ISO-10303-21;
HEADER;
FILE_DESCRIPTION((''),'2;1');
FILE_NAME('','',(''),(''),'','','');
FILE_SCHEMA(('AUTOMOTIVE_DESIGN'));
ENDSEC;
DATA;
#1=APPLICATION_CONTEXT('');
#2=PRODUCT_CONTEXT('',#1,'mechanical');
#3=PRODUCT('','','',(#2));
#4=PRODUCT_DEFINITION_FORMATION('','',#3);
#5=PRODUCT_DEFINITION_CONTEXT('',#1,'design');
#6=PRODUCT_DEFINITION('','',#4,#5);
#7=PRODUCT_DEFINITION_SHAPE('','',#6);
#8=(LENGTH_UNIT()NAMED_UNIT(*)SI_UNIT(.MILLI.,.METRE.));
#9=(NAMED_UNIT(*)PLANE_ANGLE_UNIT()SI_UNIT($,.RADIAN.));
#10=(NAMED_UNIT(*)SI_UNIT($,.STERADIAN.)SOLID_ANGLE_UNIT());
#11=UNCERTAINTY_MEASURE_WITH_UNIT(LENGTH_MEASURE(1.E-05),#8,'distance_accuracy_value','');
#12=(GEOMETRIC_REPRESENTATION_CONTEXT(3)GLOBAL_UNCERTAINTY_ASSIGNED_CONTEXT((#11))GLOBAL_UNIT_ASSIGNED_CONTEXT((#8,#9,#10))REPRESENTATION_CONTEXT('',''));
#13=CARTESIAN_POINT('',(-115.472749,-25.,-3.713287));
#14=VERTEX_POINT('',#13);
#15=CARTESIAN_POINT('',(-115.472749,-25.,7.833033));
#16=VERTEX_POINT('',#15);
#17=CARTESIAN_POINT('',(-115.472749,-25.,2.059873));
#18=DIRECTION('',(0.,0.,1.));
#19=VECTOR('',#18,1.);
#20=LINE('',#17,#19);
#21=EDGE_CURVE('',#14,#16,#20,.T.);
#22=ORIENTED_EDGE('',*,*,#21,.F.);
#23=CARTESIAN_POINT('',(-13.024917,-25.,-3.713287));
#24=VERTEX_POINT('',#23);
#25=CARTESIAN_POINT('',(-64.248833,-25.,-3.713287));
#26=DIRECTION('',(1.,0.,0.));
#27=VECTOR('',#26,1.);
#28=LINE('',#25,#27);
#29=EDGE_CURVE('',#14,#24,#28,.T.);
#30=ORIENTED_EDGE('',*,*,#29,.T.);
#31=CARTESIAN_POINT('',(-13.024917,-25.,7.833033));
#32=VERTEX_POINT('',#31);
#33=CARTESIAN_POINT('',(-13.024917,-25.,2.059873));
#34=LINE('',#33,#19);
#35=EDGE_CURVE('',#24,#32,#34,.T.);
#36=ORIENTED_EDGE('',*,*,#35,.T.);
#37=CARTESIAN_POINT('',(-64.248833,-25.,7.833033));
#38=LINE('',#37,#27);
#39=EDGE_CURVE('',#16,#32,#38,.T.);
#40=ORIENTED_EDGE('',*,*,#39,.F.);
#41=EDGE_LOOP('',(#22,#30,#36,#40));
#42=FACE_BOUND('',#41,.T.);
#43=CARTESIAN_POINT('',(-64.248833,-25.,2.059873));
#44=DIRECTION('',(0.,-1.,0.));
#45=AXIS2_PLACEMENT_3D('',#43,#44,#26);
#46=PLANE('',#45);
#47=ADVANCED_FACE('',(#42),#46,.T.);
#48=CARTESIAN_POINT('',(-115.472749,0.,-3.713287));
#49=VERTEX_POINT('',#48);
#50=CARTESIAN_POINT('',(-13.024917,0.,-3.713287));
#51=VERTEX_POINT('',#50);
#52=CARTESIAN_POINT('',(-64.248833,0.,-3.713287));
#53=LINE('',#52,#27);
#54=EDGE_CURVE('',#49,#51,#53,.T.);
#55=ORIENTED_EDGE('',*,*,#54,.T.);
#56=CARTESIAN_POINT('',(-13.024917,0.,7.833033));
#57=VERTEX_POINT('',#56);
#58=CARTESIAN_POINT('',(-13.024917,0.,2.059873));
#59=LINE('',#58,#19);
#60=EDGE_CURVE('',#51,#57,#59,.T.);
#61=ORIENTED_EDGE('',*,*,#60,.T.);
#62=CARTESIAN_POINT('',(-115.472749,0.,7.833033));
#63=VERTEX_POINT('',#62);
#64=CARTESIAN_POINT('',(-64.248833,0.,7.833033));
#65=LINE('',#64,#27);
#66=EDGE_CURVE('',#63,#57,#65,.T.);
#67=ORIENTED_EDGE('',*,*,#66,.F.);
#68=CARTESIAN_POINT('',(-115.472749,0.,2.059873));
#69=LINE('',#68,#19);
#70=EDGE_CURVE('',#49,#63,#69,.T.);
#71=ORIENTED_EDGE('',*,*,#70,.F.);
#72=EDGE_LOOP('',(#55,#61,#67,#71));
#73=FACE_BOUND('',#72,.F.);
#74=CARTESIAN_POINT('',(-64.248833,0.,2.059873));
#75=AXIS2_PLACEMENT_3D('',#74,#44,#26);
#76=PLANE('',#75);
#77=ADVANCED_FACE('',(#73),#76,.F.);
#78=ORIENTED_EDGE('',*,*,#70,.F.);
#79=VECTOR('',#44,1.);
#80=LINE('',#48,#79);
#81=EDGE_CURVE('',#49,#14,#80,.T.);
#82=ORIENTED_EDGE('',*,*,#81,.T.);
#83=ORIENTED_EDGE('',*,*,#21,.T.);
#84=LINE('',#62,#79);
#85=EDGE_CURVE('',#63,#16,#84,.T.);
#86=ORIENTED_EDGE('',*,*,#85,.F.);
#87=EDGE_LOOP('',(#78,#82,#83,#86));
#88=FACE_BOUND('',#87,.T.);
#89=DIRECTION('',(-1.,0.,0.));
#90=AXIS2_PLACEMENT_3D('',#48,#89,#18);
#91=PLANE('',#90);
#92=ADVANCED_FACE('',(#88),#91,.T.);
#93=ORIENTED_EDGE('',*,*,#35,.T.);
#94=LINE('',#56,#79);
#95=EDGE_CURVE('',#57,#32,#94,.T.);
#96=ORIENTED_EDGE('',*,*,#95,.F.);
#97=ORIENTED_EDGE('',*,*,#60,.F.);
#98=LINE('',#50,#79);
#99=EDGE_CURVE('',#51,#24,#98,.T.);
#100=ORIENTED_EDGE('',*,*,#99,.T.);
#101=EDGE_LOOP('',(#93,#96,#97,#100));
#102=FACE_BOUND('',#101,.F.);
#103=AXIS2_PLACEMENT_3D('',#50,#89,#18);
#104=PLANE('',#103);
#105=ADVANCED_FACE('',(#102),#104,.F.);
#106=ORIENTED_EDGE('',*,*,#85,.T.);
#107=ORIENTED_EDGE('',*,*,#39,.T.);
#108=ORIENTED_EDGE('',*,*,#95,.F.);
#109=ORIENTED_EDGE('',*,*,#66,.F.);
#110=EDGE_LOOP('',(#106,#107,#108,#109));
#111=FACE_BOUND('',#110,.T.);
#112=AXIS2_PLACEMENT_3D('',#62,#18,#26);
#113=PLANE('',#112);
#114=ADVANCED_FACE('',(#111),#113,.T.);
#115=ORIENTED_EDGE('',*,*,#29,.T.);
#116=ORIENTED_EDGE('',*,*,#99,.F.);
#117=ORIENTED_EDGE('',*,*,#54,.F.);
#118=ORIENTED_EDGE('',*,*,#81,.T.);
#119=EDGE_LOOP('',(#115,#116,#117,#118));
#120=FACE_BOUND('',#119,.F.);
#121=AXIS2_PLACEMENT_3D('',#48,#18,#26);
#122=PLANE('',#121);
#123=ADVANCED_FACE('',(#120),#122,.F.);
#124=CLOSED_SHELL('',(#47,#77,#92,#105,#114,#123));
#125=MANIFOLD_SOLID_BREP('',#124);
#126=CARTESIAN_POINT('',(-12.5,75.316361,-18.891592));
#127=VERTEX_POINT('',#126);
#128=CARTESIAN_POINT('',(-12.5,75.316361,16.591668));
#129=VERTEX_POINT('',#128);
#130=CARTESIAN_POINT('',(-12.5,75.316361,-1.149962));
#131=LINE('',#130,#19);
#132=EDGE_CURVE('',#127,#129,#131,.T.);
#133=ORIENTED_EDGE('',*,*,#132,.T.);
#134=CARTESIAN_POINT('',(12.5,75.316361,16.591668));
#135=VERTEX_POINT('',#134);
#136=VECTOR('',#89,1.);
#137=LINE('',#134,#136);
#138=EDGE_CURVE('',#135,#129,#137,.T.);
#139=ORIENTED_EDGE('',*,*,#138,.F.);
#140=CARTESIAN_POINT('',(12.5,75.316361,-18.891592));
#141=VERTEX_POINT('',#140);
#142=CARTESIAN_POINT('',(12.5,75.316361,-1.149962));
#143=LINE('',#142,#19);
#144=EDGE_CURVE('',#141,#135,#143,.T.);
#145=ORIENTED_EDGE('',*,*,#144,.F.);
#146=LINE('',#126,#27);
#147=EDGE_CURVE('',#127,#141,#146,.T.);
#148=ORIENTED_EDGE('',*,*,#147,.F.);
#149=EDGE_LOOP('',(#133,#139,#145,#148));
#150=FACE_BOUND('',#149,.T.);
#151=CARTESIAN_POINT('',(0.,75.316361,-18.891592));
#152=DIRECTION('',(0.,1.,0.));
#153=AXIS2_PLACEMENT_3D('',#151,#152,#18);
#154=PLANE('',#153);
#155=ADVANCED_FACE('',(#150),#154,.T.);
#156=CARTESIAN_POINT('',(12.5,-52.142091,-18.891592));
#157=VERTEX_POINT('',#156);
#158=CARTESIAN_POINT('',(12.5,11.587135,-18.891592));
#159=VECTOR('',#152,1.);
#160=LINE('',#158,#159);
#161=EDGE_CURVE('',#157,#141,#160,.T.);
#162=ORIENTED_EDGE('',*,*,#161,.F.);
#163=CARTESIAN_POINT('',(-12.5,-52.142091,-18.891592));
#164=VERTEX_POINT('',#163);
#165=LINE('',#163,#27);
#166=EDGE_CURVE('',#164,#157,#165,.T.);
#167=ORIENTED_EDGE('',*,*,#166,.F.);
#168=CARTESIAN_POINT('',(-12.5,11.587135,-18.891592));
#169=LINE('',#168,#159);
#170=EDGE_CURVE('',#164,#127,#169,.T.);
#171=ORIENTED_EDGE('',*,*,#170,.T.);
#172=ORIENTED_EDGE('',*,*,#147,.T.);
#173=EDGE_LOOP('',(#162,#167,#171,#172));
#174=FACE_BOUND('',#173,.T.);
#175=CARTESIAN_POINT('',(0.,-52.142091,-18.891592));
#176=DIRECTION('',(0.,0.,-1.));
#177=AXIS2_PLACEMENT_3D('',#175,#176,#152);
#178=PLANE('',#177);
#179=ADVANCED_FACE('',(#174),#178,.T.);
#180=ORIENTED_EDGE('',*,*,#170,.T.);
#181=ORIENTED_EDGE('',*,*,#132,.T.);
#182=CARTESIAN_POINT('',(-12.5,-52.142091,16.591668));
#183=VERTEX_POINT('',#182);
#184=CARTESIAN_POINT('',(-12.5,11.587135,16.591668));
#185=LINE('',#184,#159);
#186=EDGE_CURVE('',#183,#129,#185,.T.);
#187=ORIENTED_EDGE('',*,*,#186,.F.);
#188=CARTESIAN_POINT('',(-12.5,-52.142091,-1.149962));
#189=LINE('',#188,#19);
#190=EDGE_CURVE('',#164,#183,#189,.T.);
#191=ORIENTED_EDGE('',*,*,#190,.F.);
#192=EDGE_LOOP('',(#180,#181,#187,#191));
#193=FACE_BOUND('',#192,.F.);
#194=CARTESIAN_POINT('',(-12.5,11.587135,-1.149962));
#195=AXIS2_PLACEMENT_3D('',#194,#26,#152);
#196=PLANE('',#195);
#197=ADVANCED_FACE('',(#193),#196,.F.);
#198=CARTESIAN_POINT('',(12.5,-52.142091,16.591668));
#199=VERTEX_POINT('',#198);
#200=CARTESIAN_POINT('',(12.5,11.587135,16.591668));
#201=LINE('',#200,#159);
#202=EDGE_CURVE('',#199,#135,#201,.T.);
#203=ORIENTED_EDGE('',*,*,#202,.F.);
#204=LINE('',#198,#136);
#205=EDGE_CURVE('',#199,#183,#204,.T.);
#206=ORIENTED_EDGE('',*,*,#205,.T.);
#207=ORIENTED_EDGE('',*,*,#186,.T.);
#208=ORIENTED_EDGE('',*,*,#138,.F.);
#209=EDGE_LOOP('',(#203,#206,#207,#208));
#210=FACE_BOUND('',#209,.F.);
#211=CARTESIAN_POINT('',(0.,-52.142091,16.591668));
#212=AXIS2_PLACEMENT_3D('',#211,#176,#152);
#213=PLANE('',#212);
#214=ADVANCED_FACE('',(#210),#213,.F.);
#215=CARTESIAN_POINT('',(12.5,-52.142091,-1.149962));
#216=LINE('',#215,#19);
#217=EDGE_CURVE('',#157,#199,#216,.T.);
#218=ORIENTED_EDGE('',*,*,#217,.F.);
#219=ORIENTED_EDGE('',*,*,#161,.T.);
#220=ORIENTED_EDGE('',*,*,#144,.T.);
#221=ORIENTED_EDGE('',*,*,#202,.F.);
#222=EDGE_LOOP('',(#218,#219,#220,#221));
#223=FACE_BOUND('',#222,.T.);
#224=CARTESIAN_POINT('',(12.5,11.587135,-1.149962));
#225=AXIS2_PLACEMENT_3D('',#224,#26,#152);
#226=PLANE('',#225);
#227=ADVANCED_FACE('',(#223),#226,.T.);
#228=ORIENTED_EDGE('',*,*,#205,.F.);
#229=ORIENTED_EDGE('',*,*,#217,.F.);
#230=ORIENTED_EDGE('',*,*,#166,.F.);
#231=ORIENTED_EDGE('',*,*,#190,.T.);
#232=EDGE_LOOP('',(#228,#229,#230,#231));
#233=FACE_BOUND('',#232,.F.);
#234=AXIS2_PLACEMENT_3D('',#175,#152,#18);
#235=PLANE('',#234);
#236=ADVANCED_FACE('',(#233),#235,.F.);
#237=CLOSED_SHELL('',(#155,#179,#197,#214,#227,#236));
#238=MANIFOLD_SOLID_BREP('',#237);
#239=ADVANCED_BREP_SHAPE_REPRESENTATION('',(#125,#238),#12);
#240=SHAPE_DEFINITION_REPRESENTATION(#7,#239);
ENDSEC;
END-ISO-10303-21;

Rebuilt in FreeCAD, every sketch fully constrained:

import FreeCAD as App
import Part
import Sketcher

V = App.Vector

doc = App.newDocument("Part")
body = doc.addObject("PartDesign::Body", "Body")

sketch1 = body.newObject("Sketcher::SketchObject", "Sketch")
sketch1.AttachmentSupport = (doc.getObject("YZ_Plane"), [""])
sketch1.MapMode = "FlatFace"
sketch1.addGeometry(Part.LineSegment(V(-52.142091, 16.591668, 0), V(-52.142091, -18.891592, 0)), False)
sketch1.addGeometry(Part.LineSegment(V(-52.142091, -18.891592, 0), V(75.316361, -18.891592, 0)), False)
sketch1.addGeometry(Part.LineSegment(V(75.316361, -18.891592, 0), V(75.316361, 16.591668, 0)), False)
sketch1.addGeometry(Part.LineSegment(V(75.316361, 16.591668, 0), V(-52.142091, 16.591668, 0)), False)
sketch1.addConstraint(Sketcher.Constraint("Coincident", 0, 2, 1, 1))
sketch1.addConstraint(Sketcher.Constraint("Coincident", 1, 2, 2, 1))
sketch1.addConstraint(Sketcher.Constraint("Coincident", 2, 2, 3, 1))
sketch1.addConstraint(Sketcher.Constraint("Coincident", 3, 2, 0, 1))
sketch1.addConstraint(Sketcher.Constraint("Vertical", 0))
sketch1.addConstraint(Sketcher.Constraint("Horizontal", 1))
sketch1.addConstraint(Sketcher.Constraint("Vertical", 2))
sketch1.addConstraint(Sketcher.Constraint("Horizontal", 3))
sketch1.addConstraint(Sketcher.Constraint("DistanceY", 0, 2, 0, 1, 35.48326))
sketch1.addConstraint(Sketcher.Constraint("DistanceX", 1, 1, 1, 2, 127.458453))
sketch1.addConstraint(Sketcher.Constraint("DistanceX", 0, 2, -1, 1, 52.142091))
sketch1.addConstraint(Sketcher.Constraint("DistanceY", 0, 2, -1, 1, 18.891592))
pad1 = body.newObject("PartDesign::Pad", "Pad")
pad1.Profile = sketch1
pad1.Length = 25
pad1.Midplane = True
body2 = doc.addObject("PartDesign::Body", "Body001")

sketch2 = body2.newObject("Sketcher::SketchObject", "Sketch001")
sketch2.AttachmentSupport = (doc.getObject("XZ_Plane001"), [""])
sketch2.MapMode = "FlatFace"
sketch2.addGeometry(Part.LineSegment(V(-115.472749, 7.833033, 0), V(-115.472749, -3.713287, 0)), False)
sketch2.addGeometry(Part.LineSegment(V(-115.472749, -3.713287, 0), V(-13.024917, -3.713287, 0)), False)
sketch2.addGeometry(Part.LineSegment(V(-13.024917, -3.713287, 0), V(-13.024917, 7.833033, 0)), False)
sketch2.addGeometry(Part.LineSegment(V(-13.024917, 7.833033, 0), V(-115.472749, 7.833033, 0)), False)
sketch2.addConstraint(Sketcher.Constraint("Coincident", 0, 2, 1, 1))
sketch2.addConstraint(Sketcher.Constraint("Coincident", 1, 2, 2, 1))
sketch2.addConstraint(Sketcher.Constraint("Coincident", 2, 2, 3, 1))
sketch2.addConstraint(Sketcher.Constraint("Coincident", 3, 2, 0, 1))
sketch2.addConstraint(Sketcher.Constraint("Vertical", 0))
sketch2.addConstraint(Sketcher.Constraint("Horizontal", 1))
sketch2.addConstraint(Sketcher.Constraint("Vertical", 2))
sketch2.addConstraint(Sketcher.Constraint("Horizontal", 3))
sketch2.addConstraint(Sketcher.Constraint("DistanceX", 1, 1, 1, 2, 102.447832))
sketch2.addConstraint(Sketcher.Constraint("DistanceY", 0, 2, 0, 1, 11.54632))
sketch2.addConstraint(Sketcher.Constraint("DistanceX", 0, 2, -1, 1, 115.472749))
sketch2.addConstraint(Sketcher.Constraint("DistanceY", 0, 2, -1, 1, 3.713287))
pad2 = body2.newObject("PartDesign::Pad", "Pad001")
pad2.Profile = sketch2
pad2.Length = 25

doc.recompute()
